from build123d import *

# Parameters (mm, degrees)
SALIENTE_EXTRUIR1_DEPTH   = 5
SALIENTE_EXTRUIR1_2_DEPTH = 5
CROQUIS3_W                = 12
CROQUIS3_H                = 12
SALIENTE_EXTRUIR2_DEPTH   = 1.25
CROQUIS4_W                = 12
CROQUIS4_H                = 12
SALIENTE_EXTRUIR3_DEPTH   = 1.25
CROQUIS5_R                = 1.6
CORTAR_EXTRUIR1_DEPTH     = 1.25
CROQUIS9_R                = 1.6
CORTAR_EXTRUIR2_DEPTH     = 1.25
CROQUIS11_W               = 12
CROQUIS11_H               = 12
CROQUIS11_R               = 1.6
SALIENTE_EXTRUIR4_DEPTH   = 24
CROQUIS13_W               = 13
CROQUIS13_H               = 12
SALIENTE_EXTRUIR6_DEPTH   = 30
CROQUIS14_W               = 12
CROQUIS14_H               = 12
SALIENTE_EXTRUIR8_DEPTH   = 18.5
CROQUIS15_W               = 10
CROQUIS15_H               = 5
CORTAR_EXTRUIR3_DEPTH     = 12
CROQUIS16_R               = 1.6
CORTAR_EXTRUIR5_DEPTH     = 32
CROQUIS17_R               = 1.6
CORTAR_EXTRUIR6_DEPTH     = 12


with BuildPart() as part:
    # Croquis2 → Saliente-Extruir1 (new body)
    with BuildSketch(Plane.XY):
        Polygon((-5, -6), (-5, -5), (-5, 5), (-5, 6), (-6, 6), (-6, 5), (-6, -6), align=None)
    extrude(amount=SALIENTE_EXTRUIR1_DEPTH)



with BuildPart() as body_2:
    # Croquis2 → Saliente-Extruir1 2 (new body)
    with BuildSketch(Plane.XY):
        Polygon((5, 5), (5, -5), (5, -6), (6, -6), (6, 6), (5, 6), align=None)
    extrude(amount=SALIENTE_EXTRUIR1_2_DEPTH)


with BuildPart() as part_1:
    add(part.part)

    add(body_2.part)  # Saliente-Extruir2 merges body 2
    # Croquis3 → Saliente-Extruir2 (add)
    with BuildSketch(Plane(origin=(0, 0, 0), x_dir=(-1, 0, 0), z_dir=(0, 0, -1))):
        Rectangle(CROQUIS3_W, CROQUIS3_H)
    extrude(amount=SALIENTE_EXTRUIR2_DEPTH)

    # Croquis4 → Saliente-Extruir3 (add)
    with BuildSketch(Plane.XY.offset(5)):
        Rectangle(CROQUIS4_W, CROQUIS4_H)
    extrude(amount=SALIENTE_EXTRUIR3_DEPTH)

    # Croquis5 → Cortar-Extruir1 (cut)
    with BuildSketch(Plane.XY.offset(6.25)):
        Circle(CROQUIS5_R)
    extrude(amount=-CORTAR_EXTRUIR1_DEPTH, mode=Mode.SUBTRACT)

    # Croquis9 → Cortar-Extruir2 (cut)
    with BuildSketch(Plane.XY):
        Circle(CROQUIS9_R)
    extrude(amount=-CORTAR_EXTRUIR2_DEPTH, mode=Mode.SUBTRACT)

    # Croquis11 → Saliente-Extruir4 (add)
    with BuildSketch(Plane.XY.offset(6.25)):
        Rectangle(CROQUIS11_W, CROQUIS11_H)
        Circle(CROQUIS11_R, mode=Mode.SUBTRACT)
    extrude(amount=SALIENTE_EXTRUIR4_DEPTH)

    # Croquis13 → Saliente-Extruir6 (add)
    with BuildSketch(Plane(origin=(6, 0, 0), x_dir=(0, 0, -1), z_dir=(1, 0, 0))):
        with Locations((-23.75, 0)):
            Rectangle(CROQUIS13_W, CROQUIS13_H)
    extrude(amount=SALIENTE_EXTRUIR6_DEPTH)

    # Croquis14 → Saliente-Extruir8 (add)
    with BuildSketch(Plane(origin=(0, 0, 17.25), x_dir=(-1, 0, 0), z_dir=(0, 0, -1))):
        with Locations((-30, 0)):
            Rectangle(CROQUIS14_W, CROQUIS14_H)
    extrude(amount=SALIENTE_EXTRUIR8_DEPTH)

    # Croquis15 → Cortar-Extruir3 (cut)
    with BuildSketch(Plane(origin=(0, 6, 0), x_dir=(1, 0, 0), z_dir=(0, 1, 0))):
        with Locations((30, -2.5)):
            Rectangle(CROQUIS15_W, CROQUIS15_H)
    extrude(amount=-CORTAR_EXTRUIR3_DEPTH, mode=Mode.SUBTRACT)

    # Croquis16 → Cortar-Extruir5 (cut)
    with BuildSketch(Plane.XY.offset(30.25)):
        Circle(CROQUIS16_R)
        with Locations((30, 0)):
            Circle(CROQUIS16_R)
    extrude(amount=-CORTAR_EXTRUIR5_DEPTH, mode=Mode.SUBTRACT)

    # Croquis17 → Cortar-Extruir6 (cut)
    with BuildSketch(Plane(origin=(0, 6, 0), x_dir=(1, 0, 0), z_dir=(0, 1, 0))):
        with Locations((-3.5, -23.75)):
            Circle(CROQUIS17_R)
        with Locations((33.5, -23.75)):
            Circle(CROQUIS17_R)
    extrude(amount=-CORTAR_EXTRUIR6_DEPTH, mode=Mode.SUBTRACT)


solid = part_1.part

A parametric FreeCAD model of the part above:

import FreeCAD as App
import Part
import Sketcher
from FreeCAD import Vector
Q = App.Units.Quantity

doc = App.newDocument("Part")
params = doc.addObject("Spreadsheet::Sheet", "Params")
for row, (alias, value) in enumerate([
    ("sketch1_width", "1 mm"),
    ("sketch1_height", "12 mm"),
    ("pad1_length", "5 mm"),
    ("sketch2_width", "1 mm"),
    ("sketch2_height", "12 mm"),
    ("pad2_length", "5 mm"),
    ("sketch3_width", "12 mm"),
    ("pad3_length", "1.25 mm"),
    ("sketch4_width", "12 mm"),
    ("pad4_length", "1.25 mm"),
    ("sketch5_diameter", "3.2 mm"),
    ("pocket1_length", "1.25 mm"),
    ("sketch6_diameter", "3.2 mm"),
    ("pocket2_length", "1.25 mm"),
    ("sketch7_diameter", "3.2 mm"),
    ("sketch7_width", "12 mm"),
    ("pad5_length", "24 mm"),
    ("sketch8_width", "12 mm"),
    ("sketch8_height", "13 mm"),
    ("pad6_length", "30 mm"),
    ("sketch9_width", "12 mm"),
    ("pad7_length", "18.5 mm"),
    ("sketch10_width", "10 mm"),
    ("sketch10_height", "5 mm"),
    ("pocket3_length", "12 mm"),
    ("sketch11_diameter", "3.2 mm"),
    ("pocket4_length", "32 mm"),
    ("sketch12_diameter", "3.2 mm"),
    ("pocket5_length", "12 mm"),
], start=1):
    params.set(f"A{row}", alias)
    params.set(f"B{row}", "=" + value)
    params.setAlias(f"B{row}", alias)

body = doc.addObject("PartDesign::Body", "Body")

# Sketch on XY plane
sketch1 = body.newObject("Sketcher::SketchObject", "Sketch")
sketch1.AttachmentSupport = (doc.getObject("XY_Plane"), [""])
sketch1.MapMode = "FlatFace"
sketch1.addGeometry(Part.LineSegment(Vector(-5, -6, 0), Vector(-5, 6, 0)), False)
sketch1.addGeometry(Part.LineSegment(Vector(-5, 6, 0), Vector(-6, 6, 0)), False)
sketch1.addGeometry(Part.LineSegment(Vector(-6, 6, 0), Vector(-6, -6, 0)), False)
sketch1.addGeometry(Part.LineSegment(Vector(-6, -6, 0), Vector(-5, -6, 0)), False)
sketch1.addConstraint(Sketcher.Constraint("Coincident", 0, 2, 1, 1))
sketch1.addConstraint(Sketcher.Constraint("Coincident", 1, 2, 2, 1))
sketch1.addConstraint(Sketcher.Constraint("Coincident", 2, 2, 3, 1))
sketch1.addConstraint(Sketcher.Constraint("Coincident", 3, 2, 0, 1))
sketch1.addConstraint(Sketcher.Constraint("Vertical", 0))
sketch1.addConstraint(Sketcher.Constraint("Horizontal", 1))
sketch1.addConstraint(Sketcher.Constraint("Vertical", 2))
sketch1.addConstraint(Sketcher.Constraint("Horizontal", 3))
sketch1.addConstraint(Sketcher.Constraint("DistanceX", 1, 2, 1, 1, Q("1 mm")))
sketch1.addConstraint(Sketcher.Constraint("DistanceY", 0, 1, 0, 2, Q("12 mm")))
sketch1.addConstraint(Sketcher.Constraint("DistanceX", 0, 2, -1, 1, Q("5 mm")))
sketch1.addConstraint(Sketcher.Constraint("DistanceY", -1, 1, 0, 2, Q("6 mm")))
sketch1.setExpression("Constraints[8]", "Params.sketch1_width")
sketch1.setExpression("Constraints[9]", "Params.sketch1_height")
pad1 = body.newObject("PartDesign::Pad", "Pad")
pad1.Profile = sketch1
pad1.setExpression("Length", "Params.pad1_length")
body2 = doc.addObject("PartDesign::Body", "Body001")

# Sketch on XY plane
sketch2 = body2.newObject("Sketcher::SketchObject", "Sketch001")
sketch2.AttachmentSupport = (doc.getObject("XY_Plane001"), [""])
sketch2.MapMode = "FlatFace"
sketch2.addGeometry(Part.LineSegment(Vector(5, -6, 0), Vector(6, -6, 0)), False)
sketch2.addGeometry(Part.LineSegment(Vector(6, -6, 0), Vector(6, 6, 0)), False)
sketch2.addGeometry(Part.LineSegment(Vector(6, 6, 0), Vector(5, 6, 0)), False)
sketch2.addGeometry(Part.LineSegment(Vector(5, 6, 0), Vector(5, -6, 0)), False)
sketch2.addConstraint(Sketcher.Constraint("Coincident", 0, 2, 1, 1))
sketch2.addConstraint(Sketcher.Constraint("Coincident", 1, 2, 2, 1))
sketch2.addConstraint(Sketcher.Constraint("Coincident", 2, 2, 3, 1))
sketch2.addConstraint(Sketcher.Constraint("Coincident", 3, 2, 0, 1))
sketch2.addConstraint(Sketcher.Constraint("Horizontal", 0))
sketch2.addConstraint(Sketcher.Constraint("Vertical", 1))
sketch2.addConstraint(Sketcher.Constraint("Horizontal", 2))
sketch2.addConstraint(Sketcher.Constraint("Vertical", 3))
sketch2.addConstraint(Sketcher.Constraint("DistanceX", 0, 1, 0, 2, Q("1 mm")))
sketch2.addConstraint(Sketcher.Constraint("DistanceY", 1, 1, 1, 2, Q("12 mm")))
sketch2.addConstraint(Sketcher.Constraint("DistanceX", -1, 1, 0, 2, Q("6 mm")))
sketch2.addConstraint(Sketcher.Constraint("DistanceY", 0, 2, -1, 1, Q("6 mm")))
sketch2.setExpression("Constraints[8]", "Params.sketch2_width")
sketch2.setExpression("Constraints[9]", "Params.sketch2_height")
pad2 = body2.newObject("PartDesign::Pad", "Pad001")
pad2.Profile = sketch2
pad2.setExpression("Length", "Params.pad2_length")
body.AllowCompound = True
doc.recompute()

boolean = body.newObject("PartDesign::Boolean", "Boolean")
boolean.Type = "Fuse"
boolean.addObjects([body2])

# Sketch on XY plane
sketch3 = body.newObject("Sketcher::SketchObject", "Sketch002")
sketch3.AttachmentSupport = (doc.getObject("XY_Plane"), [""])
sketch3.MapMode = "FlatFace"
sketch3.addGeometry(Part.LineSegment(Vector(6, 6, 0), Vector(6, -6, 0)), False)
sketch3.addGeometry(Part.LineSegment(Vector(6, -6, 0), Vector(-6, -6, 0)), False)
sketch3.addGeometry(Part.LineSegment(Vector(-6, -6, 0), Vector(-6, 6, 0)), False)
sketch3.addGeometry(Part.LineSegment(Vector(-6, 6, 0), Vector(6, 6, 0)), False)
sketch3.addConstraint(Sketcher.Constraint("Coincident", 0, 2, 1, 1))
sketch3.addConstraint(Sketcher.Constraint("Coincident", 1, 2, 2, 1))
sketch3.addConstraint(Sketcher.Constraint("Coincident", 2, 2, 3, 1))
sketch3.addConstraint(Sketcher.Constraint("Coincident", 3, 2, 0, 1))
sketch3.addConstraint(Sketcher.Constraint("Vertical", 0))
sketch3.addConstraint(Sketcher.Constraint("Horizontal", 1))
sketch3.addConstraint(Sketcher.Constraint("Vertical", 2))
sketch3.addConstraint(Sketcher.Constraint("Horizontal", 3))
sketch3.addConstraint(Sketcher.Constraint("Symmetric", 0, 2, 2, 2, -1, 1))
sketch3.addConstraint(Sketcher.Constraint("Equal", 3, 0))
sketch3.addConstraint(Sketcher.Constraint("DistanceX", 1, 2, 1, 1, Q("12 mm")))
sketch3.setExpression("Constraints[10]", "Params.sketch3_width")
pad3 = body.newObject("PartDesign::Pad", "Pad002")
pad3.Profile = sketch3
pad3.setExpression("Length", "Params.pad3_length")
pad3.Reversed = True

# Sketch on XY plane
sketch4 = body.newObject("Sketcher::SketchObject", "Sketch003")
sketch4.AttachmentSupport = (doc.getObject("XY_Plane"), [""])
sketch4.MapMode = "FlatFace"
sketch4.AttachmentOffset = App.Placement(Vector(0, 0, 5), App.Rotation())
sketch4.addGeometry(Part.LineSegment(Vector(-6, 6, 0), Vector(-6, -6, 0)), False)
sketch4.addGeometry(Part.LineSegment(Vector(-6, -6, 0), Vector(6, -6, 0)), False)
sketch4.addGeometry(Part.LineSegment(Vector(6, -6, 0), Vector(6, 6, 0)), False)
sketch4.addGeometry(Part.LineSegment(Vector(6, 6, 0), Vector(-6, 6, 0)), False)
sketch4.addConstraint(Sketcher.Constraint("Coincident", 0, 2, 1, 1))
sketch4.addConstraint(Sketcher.Constraint("Coincident", 1, 2, 2, 1))
sketch4.addConstraint(Sketcher.Constraint("Coincident", 2, 2, 3, 1))
sketch4.addConstraint(Sketcher.Constraint("Coincident", 3, 2, 0, 1))
sketch4.addConstraint(Sketcher.Constraint("Vertical", 0))
sketch4.addConstraint(Sketcher.Constraint("Horizontal", 1))
sketch4.addConstraint(Sketcher.Constraint("Vertical", 2))
sketch4.addConstraint(Sketcher.Constraint("Horizontal", 3))
sketch4.addConstraint(Sketcher.Constraint("Symmetric", 0, 2, 2, 2, -1, 1))
sketch4.addConstraint(Sketcher.Constraint("Equal", 3, 0))
sketch4.addConstraint(Sketcher.Constraint("DistanceX", 1, 1, 1, 2, Q("12 mm")))
sketch4.setExpression("Constraints[10]", "Params.sketch4_width")
pad4 = body.newObject("PartDesign::Pad", "Pad003")
pad4.Profile = sketch4
pad4.setExpression("Length", "Params.pad4_length")

# Sketch on XY plane
sketch5 = body.newObject("Sketcher::SketchObject", "Sketch004")
sketch5.AttachmentSupport = (doc.getObject("XY_Plane"), [""])
sketch5.MapMode = "FlatFace"
sketch5.AttachmentOffset = App.Placement(Vector(0, 0, 6.25), App.Rotation())
sketch5.addGeometry(Part.Circle(Vector(0, 0, 0), Vector(0, 0, 1), 1.6), False)
sketch5.addConstraint(Sketcher.Constraint("Coincident", 0, 3, -1, 1))
sketch5.addConstraint(Sketcher.Constraint("Diameter", 0, Q("3.2 mm")))
sketch5.setExpression("Constraints[1]", "Params.sketch5_diameter")
pocket1 = body.newObject("PartDesign::Pocket", "Pocket")
pocket1.Profile = sketch5
pocket1.setExpression("Length", "Params.pocket1_length")

# Sketch on XY plane
sketch6 = body.newObject("Sketcher::SketchObject", "Sketch005")
sketch6.AttachmentSupport = (doc.getObject("XY_Plane"), [""])
sketch6.MapMode = "FlatFace"
sketch6.addGeometry(Part.Circle(Vector(0, 0, 0), Vector(0, 0, 1), 1.6), False)
sketch6.addConstraint(Sketcher.Constraint("Coincident", 0, 3, -1, 1))
sketch6.addConstraint(Sketcher.Constraint("Diameter", 0, Q("3.2 mm")))
sketch6.setExpression("Constraints[1]", "Params.sketch6_diameter")
pocket2 = body.newObject("PartDesign::Pocket", "Pocket001")
pocket2.Profile = sketch6
pocket2.setExpression("Length", "Params.pocket2_length")

# Sketch on XY plane
sketch7 = body.newObject("Sketcher::SketchObject", "Sketch006")
sketch7.AttachmentSupport = (doc.getObject("XY_Plane"), [""])
sketch7.MapMode = "FlatFace"
sketch7.AttachmentOffset = App.Placement(Vector(0, 0, 6.25), App.Rotation())
sketch7.addGeometry(Part.LineSegment(Vector(-6, 6, 0), Vector(-6, -6, 0)), False)
sketch7.addGeometry(Part.LineSegment(Vector(-6, -6, 0), Vector(6, -6, 0)), False)
sketch7.addGeometry(Part.LineSegment(Vector(6, -6, 0), Vector(6, 6, 0)), False)
sketch7.addGeometry(Part.LineSegment(Vector(6, 6, 0), Vector(-6, 6, 0)), False)
sketch7.addGeometry(Part.Circle(Vector(0, 0, 0), Vector(0, 0, 1), 1.6), False)
sketch7.addConstraint(Sketcher.Constraint("Coincident", 0, 2, 1, 1))
sketch7.addConstraint(Sketcher.Constraint("Coincident", 1, 2, 2, 1))
sketch7.addConstraint(Sketcher.Constraint("Coincident", 2, 2, 3, 1))
sketch7.addConstraint(Sketcher.Constraint("Coincident", 3, 2, 0, 1))
sketch7.addConstraint(Sketcher.Constraint("Vertical", 0))
sketch7.addConstraint(Sketcher.Constraint("Horizontal", 1))
sketch7.addConstraint(Sketcher.Constraint("Vertical", 2))
sketch7.addConstraint(Sketcher.Constraint("Horizontal", 3))
sketch7.addConstraint(Sketcher.Constraint("Coincident", 4, 3, -1, 1))
sketch7.addConstraint(Sketcher.Constraint("Symmetric", 0, 2, 2, 2, -1, 1))
sketch7.addConstraint(Sketcher.Constraint("Equal", 3, 0))
sketch7.addConstraint(Sketcher.Constraint("Diameter", 4, Q("3.2 mm")))
sketch7.addConstraint(Sketcher.Constraint("DistanceX", 1, 1, 1, 2, Q("12 mm")))
sketch7.setExpression("Constraints[11]", "Params.sketch7_diameter")
sketch7.setExpression("Constraints[12]", "Params.sketch7_width")
pad5 = body.newObject("PartDesign::Pad", "Pad004")
pad5.Profile = sketch7
pad5.setExpression("Length", "Params.pad5_length")

# Sketch on YZ plane
sketch8 = body.newObject("Sketcher::SketchObject", "Sketch007")
sketch8.AttachmentSupport = (doc.getObject("YZ_Plane"), [""])
sketch8.MapMode = "FlatFace"
sketch8.AttachmentOffset = App.Placement(Vector(0, 0, 6), App.Rotation())
sketch8.addGeometry(Part.LineSegment(Vector(6, 30, 0), Vector(-6, 30, 0)), False)
sketch8.addGeometry(Part.LineSegment(Vector(-6, 30, 0), Vector(-6, 17, 0)), False)
sketch8.addGeometry(Part.LineSegment(Vector(-6, 17, 0), Vector(6, 17, 0)), False)
sketch8.addGeometry(Part.LineSegment(Vector(6, 17, 0), Vector(6, 30, 0)), False)
sketch8.addConstraint(Sketcher.Constraint("Coincident", 0, 2, 1, 1))
sketch8.addConstraint(Sketcher.Constraint("Coincident", 1, 2, 2, 1))
sketch8.addConstraint(Sketcher.Constraint("Coincident", 2, 2, 3, 1))
sketch8.addConstraint(Sketcher.Constraint("Coincident", 3, 2, 0, 1))
sketch8.addConstraint(Sketcher.Constraint("Horizontal", 0))
sketch8.addConstraint(Sketcher.Constraint("Vertical", 1))
sketch8.addConstraint(Sketcher.Constraint("Horizontal", 2))
sketch8.addConstraint(Sketcher.Constraint("Vertical", 3))
sketch8.addConstraint(Sketcher.Constraint("DistanceX", 0, 2, 0, 1, Q("12 mm")))
sketch8.addConstraint(Sketcher.Constraint("DistanceY", 1, 2, 1, 1, Q("13 mm")))
sketch8.addConstraint(Sketcher.Constraint("DistanceX", 0, 2, -1, 1, Q("6 mm")))
sketch8.addConstraint(Sketcher.Constraint("DistanceY", -1, 1, 0, 2, Q("30.25 mm")))
sketch8.setExpression("Constraints[8]", "Params.sketch8_width")
sketch8.setExpression("Constraints[9]", "Params.sketch8_height")
pad6 = body.newObject("PartDesign::Pad", "Pad005")
pad6.Profile = sketch8
pad6.setExpression("Length", "Params.pad6_length")

# Sketch on XY plane
sketch9 = body.newObject("Sketcher::SketchObject", "Sketch008")
sketch9.AttachmentSupport = (doc.getObject("XY_Plane"), [""])
sketch9.MapMode = "FlatFace"
sketch9.AttachmentOffset = App.Placement(Vector(0, 0, 17.25), App.Rotation())
sketch9.addGeometry(Part.LineSegment(Vector(36, 6, 0), Vector(36, -6, 0)), False)
sketch9.addGeometry(Part.LineSegment(Vector(36, -6, 0), Vector(24, -6, 0)), False)
sketch9.addGeometry(Part.LineSegment(Vector(24, -6, 0), Vector(24, 6, 0)), False)
sketch9.addGeometry(Part.LineSegment(Vector(24, 6, 0), Vector(36, 6, 0)), False)
sketch9.addConstraint(Sketcher.Constraint("Coincident", 0, 2, 1, 1))
sketch9.addConstraint(Sketcher.Constraint("Coincident", 1, 2, 2, 1))
sketch9.addConstraint(Sketcher.Constraint("Coincident", 2, 2, 3, 1))
sketch9.addConstraint(Sketcher.Constraint("Coincident", 3, 2, 0, 1))
sketch9.addConstraint(Sketcher.Constraint("Vertical", 0))
sketch9.addConstraint(Sketcher.Constraint("Horizontal", 1))
sketch9.addConstraint(Sketcher.Constraint("Vertical", 2))
sketch9.addConstraint(Sketcher.Constraint("Horizontal", 3))
sketch9.addConstraint(Sketcher.Constraint("Equal", 3, 0))
sketch9.addConstraint(Sketcher.Constraint("DistanceX", 1, 2, 1, 1, Q("12 mm")))
sketch9.addConstraint(Sketcher.Constraint("DistanceX", -1, 1, 0, 2, Q("36 mm")))
sketch9.addConstraint(Sketcher.Constraint("DistanceY", 0, 2, -1, 1, Q("6 mm")))
sketch9.setExpression("Constraints[9]", "Params.sketch9_width")
pad7 = body.newObject("PartDesign::Pad", "Pad006")
pad7.Profile = sketch9
pad7.setExpression("Length", "Params.pad7_length")
pad7.Reversed = True

# Sketch on XZ plane
sketch10 = body.newObject("Sketcher::SketchObject", "Sketch009")
sketch10.AttachmentSupport = (doc.getObject("XZ_Plane"), [""])
sketch10.MapMode = "FlatFace"
sketch10.AttachmentOffset = App.Placement(Vector(0, 0, -6), App.Rotation())
sketch10.addGeometry(Part.LineSegment(Vector(25, 0, 0), Vector(25, 5, 0)), False)
sketch10.addGeometry(Part.LineSegment(Vector(25, 5, 0), Vector(35, 5, 0)), False)
sketch10.addGeometry(Part.LineSegment(Vector(35, 5, 0), Vector(35, 0, 0)), False)
sketch10.addGeometry(Part.LineSegment(Vector(35, 0, 0), Vector(25, 0, 0)), False)
sketch10.addConstraint(Sketcher.Constraint("Coincident", 0, 2, 1, 1))
sketch10.addConstraint(Sketcher.Constraint("Coincident", 1, 2, 2, 1))
sketch10.addConstraint(Sketcher.Constraint("Coincident", 2, 2, 3, 1))
sketch10.addConstraint(Sketcher.Constraint("Coincident", 3, 2, 0, 1))
sketch10.addConstraint(Sketcher.Constraint("Vertical", 0))
sketch10.addConstraint(Sketcher.Constraint("Horizontal", 1))
sketch10.addConstraint(Sketcher.Constraint("Vertical", 2))
sketch10.addConstraint(Sketcher.Constraint("Horizontal", 3))
sketch10.addConstraint(Sketcher.Constraint("PointOnObject", 2, 2, -1))
sketch10.addConstraint(Sketcher.Constraint("DistanceX", 1, 1, 1, 2, Q("10 mm")))
sketch10.addConstraint(Sketcher.Constraint("DistanceY", 0, 1, 0, 2, Q("5 mm")))
sketch10.addConstraint(Sketcher.Constraint("DistanceX", -1, 1, 0, 2, Q("25 mm")))
sketch10.setExpression("Constraints[9]", "Params.sketch10_width")
sketch10.setExpression("Constraints[10]", "Params.sketch10_height")
pocket3 = body.newObject("PartDesign::Pocket", "Pocket002")
pocket3.Profile = sketch10
pocket3.setExpression("Length", "Params.pocket3_length")
pocket3.Reversed = True

# Sketch on XY plane
sketch11 = body.newObject("Sketcher::SketchObject", "Sketch010")
sketch11.AttachmentSupport = (doc.getObject("XY_Plane"), [""])
sketch11.MapMode = "FlatFace"
sketch11.AttachmentOffset = App.Placement(Vector(0, 0, 30.25), App.Rotation())
sketch11.addGeometry(Part.Circle(Vector(0, 0, 0), Vector(0, 0, 1), 1.6), False)
sketch11.addGeometry(Part.Circle(Vector(30, 0, 0), Vector(0, 0, 1), 1.6), False)
sketch11.addConstraint(Sketcher.Constraint("Coincident", 0, 3, -1, 1))
sketch11.addConstraint(Sketcher.Constraint("Equal", 0, 1))
sketch11.addConstraint(Sketcher.Constraint("PointOnObject", 1, 3, -1))
sketch11.addConstraint(Sketcher.Constraint("Diameter", 0, Q("3.2 mm")))
sketch11.addConstraint(Sketcher.Constraint("DistanceX", -1, 1, 1, 3, Q("30 mm")))
sketch11.setExpression("Constraints[3]", "Params.sketch11_diameter")
pocket4 = body.newObject("PartDesign::Pocket", "Pocket003")
pocket4.Profile = sketch11
pocket4.setExpression("Length", "Params.pocket4_length")

# Sketch on XZ plane
sketch12 = body.newObject("Sketcher::SketchObject", "Sketch011")
sketch12.AttachmentSupport = (doc.getObject("XZ_Plane"), [""])
sketch12.MapMode = "FlatFace"
sketch12.AttachmentOffset = App.Placement(Vector(0, 0, -6), App.Rotation())
sketch12.addGeometry(Part.Circle(Vector(-3.5, 23.8, 0), Vector(0, 0, 1), 1.6), False)
sketch12.addGeometry(Part.Circle(Vector(33.5, 23.8, 0), Vector(0, 0, 1), 1.6), False)
sketch12.addConstraint(Sketcher.Constraint("Equal", 0, 1))
sketch12.addConstraint(Sketcher.Constraint("Horizontal", 0, 3, 1, 3))
sketch12.addConstraint(Sketcher.Constraint("Diameter", 0, Q("3.2 mm")))
sketch12.addConstraint(Sketcher.Constraint("DistanceX", 0, 3, 1, 3, Q("37 mm")))
sketch12.addConstraint(Sketcher.Constraint("DistanceX", 0, 3, -1, 1, Q("3.5 mm")))
sketch12.addConstraint(Sketcher.Constraint("DistanceY", -1, 1, 0, 3, Q("23.75 mm")))
sketch12.setExpression("Constraints[2]", "Params.sketch12_diameter")
pocket5 = body.newObject("PartDesign::Pocket", "Pocket004")
pocket5.Profile = sketch12
pocket5.setExpression("Length", "Params.pocket5_length")
pocket5.Reversed = True

doc.recompute()
